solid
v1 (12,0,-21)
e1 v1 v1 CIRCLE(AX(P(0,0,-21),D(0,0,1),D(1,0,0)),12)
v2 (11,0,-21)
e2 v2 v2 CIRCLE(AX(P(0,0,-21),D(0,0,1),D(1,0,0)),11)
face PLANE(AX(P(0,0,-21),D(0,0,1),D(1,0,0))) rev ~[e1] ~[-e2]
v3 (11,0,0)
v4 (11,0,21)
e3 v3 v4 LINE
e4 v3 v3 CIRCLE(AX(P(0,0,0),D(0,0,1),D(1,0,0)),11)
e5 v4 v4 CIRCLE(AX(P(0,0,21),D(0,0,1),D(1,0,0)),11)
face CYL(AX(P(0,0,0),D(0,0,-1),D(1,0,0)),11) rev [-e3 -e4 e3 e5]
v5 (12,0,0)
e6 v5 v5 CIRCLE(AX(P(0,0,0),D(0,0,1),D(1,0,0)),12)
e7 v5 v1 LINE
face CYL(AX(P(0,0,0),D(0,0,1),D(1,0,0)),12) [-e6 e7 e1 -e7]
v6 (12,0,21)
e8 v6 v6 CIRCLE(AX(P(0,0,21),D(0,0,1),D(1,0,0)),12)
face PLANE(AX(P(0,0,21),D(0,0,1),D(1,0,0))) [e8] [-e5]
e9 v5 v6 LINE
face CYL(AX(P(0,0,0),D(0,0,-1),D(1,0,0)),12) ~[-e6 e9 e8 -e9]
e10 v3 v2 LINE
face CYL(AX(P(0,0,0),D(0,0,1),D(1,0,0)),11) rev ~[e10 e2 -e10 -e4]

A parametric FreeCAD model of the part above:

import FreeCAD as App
import Part
import Sketcher
Q = App.Units.Quantity

doc = App.newDocument("Part")
params = doc.addObject("Spreadsheet::Sheet", "Params")
for row, (alias, value) in enumerate([
    ("sketch1_diameter", "24 mm"),
    ("sketch1_diameter2", "22 mm"),
    ("pad1_length", "42 mm"),
], start=1):
    params.set(f"A{row}", alias)
    params.set(f"B{row}", "=" + value)
    params.setAlias(f"B{row}", alias)

body = doc.addObject("PartDesign::Body", "Body")

# Sketch on XY plane
sketch1 = doc.addObject("Sketcher::SketchObject", "Sketch")
body.addObject(sketch1)
sketch1.AttachmentSupport = (doc.XY_Plane, [""])
sketch1.MapMode = "FlatFace"
sketch1.addGeometry(Part.Circle(App.Vector(0, 0, 0), App.Vector(0, 0, 1), 12), False)
sketch1.addGeometry(Part.Circle(App.Vector(0, 0, 0), App.Vector(0, 0, 1), 11), False)
sketch1.addConstraint(Sketcher.Constraint("Coincident", 0, 3, -1, 1))
sketch1.addConstraint(Sketcher.Constraint("Coincident", 1, 3, -1, 1))
sketch1.addConstraint(Sketcher.Constraint("Diameter", 0, Q("24 mm")))
sketch1.addConstraint(Sketcher.Constraint("Diameter", 1, Q("22 mm")))
sketch1.setExpression("Constraints[2]", "Params.sketch1_diameter")
sketch1.setExpression("Constraints[3]", "Params.sketch1_diameter2")
pad1 = doc.addObject("PartDesign::Pad", "Pad")
body.addObject(pad1)
pad1.Profile = sketch1
pad1.setExpression("Length", "Params.pad1_length")
pad1.Midplane = True

doc.recompute()
